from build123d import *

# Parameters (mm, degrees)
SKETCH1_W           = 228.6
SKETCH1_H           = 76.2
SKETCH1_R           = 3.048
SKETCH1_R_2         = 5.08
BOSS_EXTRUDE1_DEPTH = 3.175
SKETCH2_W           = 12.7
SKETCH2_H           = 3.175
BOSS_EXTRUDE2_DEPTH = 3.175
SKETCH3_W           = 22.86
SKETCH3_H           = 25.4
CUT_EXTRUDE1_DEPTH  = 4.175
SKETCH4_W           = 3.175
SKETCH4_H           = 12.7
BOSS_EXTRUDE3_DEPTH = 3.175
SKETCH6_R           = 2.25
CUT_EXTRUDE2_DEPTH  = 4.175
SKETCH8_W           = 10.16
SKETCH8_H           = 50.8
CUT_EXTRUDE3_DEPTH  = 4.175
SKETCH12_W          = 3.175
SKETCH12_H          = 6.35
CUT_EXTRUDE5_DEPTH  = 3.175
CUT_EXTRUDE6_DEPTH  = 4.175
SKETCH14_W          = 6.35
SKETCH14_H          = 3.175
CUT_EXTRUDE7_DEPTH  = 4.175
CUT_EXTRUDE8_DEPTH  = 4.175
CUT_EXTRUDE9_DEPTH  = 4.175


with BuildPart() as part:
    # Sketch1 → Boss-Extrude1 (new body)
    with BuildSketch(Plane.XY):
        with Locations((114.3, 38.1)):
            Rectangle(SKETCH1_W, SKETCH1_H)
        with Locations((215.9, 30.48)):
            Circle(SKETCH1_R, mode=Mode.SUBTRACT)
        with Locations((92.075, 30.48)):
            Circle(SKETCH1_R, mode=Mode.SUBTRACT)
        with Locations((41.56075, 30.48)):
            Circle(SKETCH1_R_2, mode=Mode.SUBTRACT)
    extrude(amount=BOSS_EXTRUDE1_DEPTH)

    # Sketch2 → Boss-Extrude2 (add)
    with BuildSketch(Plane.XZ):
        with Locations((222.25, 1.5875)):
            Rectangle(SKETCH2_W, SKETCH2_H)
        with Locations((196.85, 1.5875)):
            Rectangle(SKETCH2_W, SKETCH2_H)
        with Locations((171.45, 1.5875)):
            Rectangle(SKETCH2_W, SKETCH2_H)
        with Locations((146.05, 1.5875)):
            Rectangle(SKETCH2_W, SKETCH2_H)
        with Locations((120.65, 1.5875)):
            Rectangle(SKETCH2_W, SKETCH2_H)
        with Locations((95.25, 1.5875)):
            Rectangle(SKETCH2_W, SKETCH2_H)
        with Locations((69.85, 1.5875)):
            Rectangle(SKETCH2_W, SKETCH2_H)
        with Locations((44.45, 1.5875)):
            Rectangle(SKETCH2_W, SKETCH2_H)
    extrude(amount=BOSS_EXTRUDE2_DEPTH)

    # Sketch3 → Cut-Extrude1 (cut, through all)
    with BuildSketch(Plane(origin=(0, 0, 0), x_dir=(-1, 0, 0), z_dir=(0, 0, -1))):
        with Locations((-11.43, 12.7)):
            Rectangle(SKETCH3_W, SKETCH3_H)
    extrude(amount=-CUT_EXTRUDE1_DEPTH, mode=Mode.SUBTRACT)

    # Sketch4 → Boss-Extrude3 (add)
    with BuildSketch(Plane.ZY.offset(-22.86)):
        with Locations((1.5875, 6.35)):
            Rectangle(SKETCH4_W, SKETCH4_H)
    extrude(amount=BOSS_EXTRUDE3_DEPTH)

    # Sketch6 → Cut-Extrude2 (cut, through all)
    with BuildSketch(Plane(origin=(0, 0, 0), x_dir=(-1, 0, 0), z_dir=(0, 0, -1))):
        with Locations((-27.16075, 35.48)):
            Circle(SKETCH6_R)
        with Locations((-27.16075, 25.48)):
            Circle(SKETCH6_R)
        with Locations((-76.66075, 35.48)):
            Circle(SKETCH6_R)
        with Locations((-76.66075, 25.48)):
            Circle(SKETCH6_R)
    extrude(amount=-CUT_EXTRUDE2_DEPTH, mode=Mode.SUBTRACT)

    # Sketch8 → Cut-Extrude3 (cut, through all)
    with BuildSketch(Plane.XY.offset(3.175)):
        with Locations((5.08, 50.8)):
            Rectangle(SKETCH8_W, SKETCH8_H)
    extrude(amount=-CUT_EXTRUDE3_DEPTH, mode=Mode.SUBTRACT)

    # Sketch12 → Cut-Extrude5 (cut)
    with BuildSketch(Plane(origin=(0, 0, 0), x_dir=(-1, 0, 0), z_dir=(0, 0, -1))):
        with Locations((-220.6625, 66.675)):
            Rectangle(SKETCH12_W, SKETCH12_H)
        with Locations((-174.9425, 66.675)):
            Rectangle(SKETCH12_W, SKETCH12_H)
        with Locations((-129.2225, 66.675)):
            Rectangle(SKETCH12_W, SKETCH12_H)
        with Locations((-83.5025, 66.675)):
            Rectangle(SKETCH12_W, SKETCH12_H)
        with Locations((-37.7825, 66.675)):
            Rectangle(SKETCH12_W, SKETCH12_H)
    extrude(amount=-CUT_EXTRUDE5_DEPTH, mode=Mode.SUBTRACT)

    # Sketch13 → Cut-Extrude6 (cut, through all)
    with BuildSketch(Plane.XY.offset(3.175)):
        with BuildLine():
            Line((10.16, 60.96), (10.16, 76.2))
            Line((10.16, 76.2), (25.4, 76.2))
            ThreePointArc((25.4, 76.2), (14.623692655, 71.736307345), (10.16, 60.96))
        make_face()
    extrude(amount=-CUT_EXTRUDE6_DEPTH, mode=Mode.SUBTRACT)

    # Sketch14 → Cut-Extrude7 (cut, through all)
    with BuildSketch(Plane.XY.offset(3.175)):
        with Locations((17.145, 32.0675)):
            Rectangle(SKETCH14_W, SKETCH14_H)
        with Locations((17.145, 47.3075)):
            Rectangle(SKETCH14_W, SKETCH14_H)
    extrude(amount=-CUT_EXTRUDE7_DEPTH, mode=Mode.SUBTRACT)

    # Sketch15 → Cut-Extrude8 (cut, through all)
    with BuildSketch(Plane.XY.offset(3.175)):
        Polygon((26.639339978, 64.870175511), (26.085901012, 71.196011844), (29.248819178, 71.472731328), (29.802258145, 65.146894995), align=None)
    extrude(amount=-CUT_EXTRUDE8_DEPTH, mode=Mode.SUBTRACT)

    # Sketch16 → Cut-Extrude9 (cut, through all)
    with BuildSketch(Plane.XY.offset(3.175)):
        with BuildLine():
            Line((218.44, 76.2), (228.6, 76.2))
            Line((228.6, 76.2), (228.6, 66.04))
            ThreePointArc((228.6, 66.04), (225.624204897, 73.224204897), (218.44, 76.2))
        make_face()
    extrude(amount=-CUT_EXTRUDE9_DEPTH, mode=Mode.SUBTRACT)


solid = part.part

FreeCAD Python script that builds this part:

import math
import FreeCAD as App
import Part
import Sketcher
from FreeCAD import Vector
Q = App.Units.Quantity


def add_polygon(sketch, points):
    """Adds a closed chain of lines whose ends are joined by coincident constraints."""
    first, n = sketch.GeometryCount, len(points)
    for a, b in zip(points, points[1:] + points[:1]):
        sketch.addGeometry(Part.LineSegment(App.Vector(*a, 0), App.Vector(*b, 0)), False)
    for i in range(n):
        sketch.addConstraint(Sketcher.Constraint("Coincident", first + i, 2, first + (i + 1) % n, 1))

doc = App.newDocument("Part")
body = doc.addObject("PartDesign::Body", "Body")

# Sketch on XY plane
sketch1 = body.newObject("Sketcher::SketchObject", "Sketch")
sketch1.AttachmentSupport = (doc.getObject("XY_Plane"), [""])
sketch1.MapMode = "FlatFace"
add_polygon(sketch1, [(0, 76.2), (0, 0), (228.6, 0), (228.6, 76.2)])  # lines 0-3
sketch1.addGeometry(Part.Circle(Vector(41.6, 30.5, 0), Vector(0, 0, 1), 5.1), False)  # 4
sketch1.addGeometry(Part.Circle(Vector(92.1, 30.5, 0), Vector(0, 0, 1), 3), False)  # 5
sketch1.addGeometry(Part.Circle(Vector(215.9, 30.5, 0), Vector(0, 0, 1), 3), False)  # 6
sketch1.addConstraint([
    Sketcher.Constraint("Vertical", 0),
    Sketcher.Constraint("Horizontal", 1),
    Sketcher.Constraint("Vertical", 2),
    Sketcher.Constraint("Horizontal", 3),
    Sketcher.Constraint("Coincident", 0, 2, -1, 1),
    Sketcher.Constraint("Equal", 5, 6),
    Sketcher.Constraint("Horizontal", 4, 3, 5, 3),
    Sketcher.Constraint("Horizontal", 5, 3, 6, 3),
    Sketcher.Constraint("Diameter", 4, Q("0.4 in")),
    Sketcher.Constraint("Diameter", 5, Q("0.24 in")),
    Sketcher.Constraint("DistanceX", 1, 1, 1, 2, Q("9 in")),
    Sketcher.Constraint("DistanceY", 0, 2, 0, 1, Q("3 in")),
    Sketcher.Constraint("DistanceY", -1, 1, 4, 3, Q("1.2 in")),
    Sketcher.Constraint("DistanceX", -1, 1, 6, 3, Q("8.5 in")),
    Sketcher.Constraint("DistanceX", -1, 1, 5, 3, Q("3.625 in")),
    Sketcher.Constraint("DistanceX", -1, 1, 4, 3, Q("41.56075 mm")),
])
pad1 = body.newObject("PartDesign::Pad", "Pad")
pad1.Profile = sketch1
pad1.Length = Q("0.125 in")

# Sketch on XZ plane
sketch2 = body.newObject("Sketcher::SketchObject", "Sketch001")
sketch2.AttachmentSupport = (doc.getObject("XZ_Plane"), [""])
sketch2.MapMode = "FlatFace"
add_polygon(sketch2, [(215.9, 3.2), (215.9, 0), (228.6, 0), (228.6, 3.2)])  # lines 0-3
add_polygon(sketch2, [(190.5, 3.2), (190.5, 0), (203.2, 0), (203.2, 3.2)])  # lines 4-7
add_polygon(sketch2, [(165.1, 3.2), (165.1, 0), (177.8, 0), (177.8, 3.2)])  # lines 8-11
add_polygon(sketch2, [(139.7, 3.2), (139.7, 0), (152.4, 0), (152.4, 3.2)])  # lines 12-15
add_polygon(sketch2, [(114.3, 3.2), (114.3, 0), (127, 0), (127, 3.2)])  # lines 16-19
add_polygon(sketch2, [(88.9, 3.2), (88.9, 0), (101.6, 0), (101.6, 3.2)])  # lines 20-23
add_polygon(sketch2, [(63.5, 3.2), (63.5, 0), (76.2, 0), (76.2, 3.2)])  # lines 24-27
add_polygon(sketch2, [(38.1, 3.2), (38.1, 0), (50.8, 0), (50.8, 3.2)])  # lines 28-31
sketch2.addConstraint([
    Sketcher.Constraint("Vertical", 0),
    Sketcher.Constraint("Horizontal", 1),
    Sketcher.Constraint("Vertical", 2),
    Sketcher.Constraint("Horizontal", 3),
    Sketcher.Constraint("Vertical", 4),
    Sketcher.Constraint("Horizontal", 5),
    Sketcher.Constraint("Vertical", 6),
    Sketcher.Constraint("Horizontal", 7),
    Sketcher.Constraint("Vertical", 8),
    Sketcher.Constraint("Horizontal", 9),
    Sketcher.Constraint("Vertical", 10),
    Sketcher.Constraint("Horizontal", 11),
    Sketcher.Constraint("Vertical", 12),
    Sketcher.Constraint("Horizontal", 13),
    Sketcher.Constraint("Vertical", 14),
    Sketcher.Constraint("Horizontal", 15),
    Sketcher.Constraint("Vertical", 16),
    Sketcher.Constraint("Horizontal", 17),
    Sketcher.Constraint("Vertical", 18),
    Sketcher.Constraint("Horizontal", 19),
    Sketcher.Constraint("Vertical", 20),
    Sketcher.Constraint("Horizontal", 21),
    Sketcher.Constraint("Vertical", 22),
    Sketcher.Constraint("Horizontal", 23),
    Sketcher.Constraint("Vertical", 24),
    Sketcher.Constraint("Horizontal", 25),
    Sketcher.Constraint("Vertical", 26),
    Sketcher.Constraint("Horizontal", 27),
    Sketcher.Constraint("Vertical", 28),
    Sketcher.Constraint("Horizontal", 29),
    Sketcher.Constraint("Vertical", 30),
    Sketcher.Constraint("Horizontal", 31),
    Sketcher.Constraint("PointOnObject", 0, 2, -1),
    Sketcher.Constraint("PointOnObject", 4, 2, -1),
    Sketcher.Constraint("PointOnObject", 8, 2, -1),
    Sketcher.Constraint("PointOnObject", 12, 2, -1),
    Sketcher.Constraint("PointOnObject", 16, 2, -1),
    Sketcher.Constraint("PointOnObject", 20, 2, -1),
    Sketcher.Constraint("PointOnObject", 24, 2, -1),
    Sketcher.Constraint("PointOnObject", 28, 2, -1),
    Sketcher.Constraint("Horizontal", 3, 2, 6, 2),
    Sketcher.Constraint("Horizontal", 7, 2, 10, 2),
    Sketcher.Constraint("Horizontal", 11, 2, 14, 2),
    Sketcher.Constraint("Horizontal", 15, 2, 18, 2),
    Sketcher.Constraint("Horizontal", 19, 2, 22, 2),
    Sketcher.Constraint("Horizontal", 23, 2, 26, 2),
    Sketcher.Constraint("Horizontal", 27, 2, 30, 2),
    Sketcher.Constraint("Equal", 3, 5),
    Sketcher.Constraint("Equal", 7, 9),
    Sketcher.Constraint("Equal", 11, 13),
    Sketcher.Constraint("Equal", 15, 17),
    Sketcher.Constraint("Equal", 19, 21),
    Sketcher.Constraint("Equal", 23, 25),
    Sketcher.Constraint("Equal", 27, 29),
    Sketcher.Constraint("DistanceX", 1, 1, 1, 2, Q("0.5 in")),
    Sketcher.Constraint("DistanceX", -1, 1, 1, 2, Q("9 in")),
    Sketcher.Constraint("DistanceX", -1, 1, 5, 2, Q("8 in")),
    Sketcher.Constraint("DistanceX", -1, 1, 9, 2, Q("7 in")),
    Sketcher.Constraint("DistanceX", -1, 1, 13, 2, Q("6 in")),
    Sketcher.Constraint("DistanceX", -1, 1, 17, 2, Q("5 in")),
    Sketcher.Constraint("DistanceX", -1, 1, 21, 2, Q("4 in")),
    Sketcher.Constraint("DistanceX", -1, 1, 25, 2, Q("3 in")),
    Sketcher.Constraint("DistanceX", -1, 1, 29, 2, Q("2 in")),
    Sketcher.Constraint("DistanceY", 0, 2, 0, 1, Q("0.125 in")),
])
pad2 = body.newObject("PartDesign::Pad", "Pad001")
pad2.Profile = sketch2
pad2.Length = Q("0.125 in")

# Sketch on XY plane
sketch3 = body.newObject("Sketcher::SketchObject", "Sketch002")
sketch3.AttachmentSupport = (doc.getObject("XY_Plane"), [""])
sketch3.MapMode = "FlatFace"
add_polygon(sketch3, [(23, 25), (23, 0), (0, 0), (0, 25)])  # lines 0-3
sketch3.addConstraint([
    Sketcher.Constraint("Vertical", 0),
    Sketcher.Constraint("Horizontal", 1),
    Sketcher.Constraint("Vertical", 2),
    Sketcher.Constraint("Horizontal", 3),
    Sketcher.Constraint("Coincident", 1, 2, -1, 1),
    Sketcher.Constraint("DistanceY", 0, 2, 0, 1, Q("1 in")),
    Sketcher.Constraint("DistanceX", 1, 2, 1, 1, Q("0.9 in")),
])
pocket1 = body.newObject("PartDesign::Pocket", "Pocket")
pocket1.Profile = sketch3
pocket1.Type = "ThroughAll"
pocket1.Reversed = True

# Sketch on YZ plane
sketch4 = body.newObject("Sketcher::SketchObject", "Sketch003")
sketch4.AttachmentSupport = (doc.getObject("YZ_Plane"), [""])
sketch4.MapMode = "FlatFace"
sketch4.AttachmentOffset = App.Placement(Vector(0, 0, 0.9 * 25.4), App.Rotation())
add_polygon(sketch4, [(12.7, 0), (0, 0), (0, 3.2), (12.7, 3.2)])  # lines 0-3
sketch4.addConstraint([
    Sketcher.Constraint("Horizontal", 0),
    Sketcher.Constraint("Vertical", 1),
    Sketcher.Constraint("Horizontal", 2),
    Sketcher.Constraint("Vertical", 3),
    Sketcher.Constraint("Coincident", 0, 2, -1, 1),
    Sketcher.Constraint("DistanceX", 0, 2, 0, 1, Q("0.5 in")),
    Sketcher.Constraint("DistanceY", 1, 1, 1, 2, Q("0.125 in")),
])
pad3 = body.newObject("PartDesign::Pad", "Pad002")
pad3.Profile = sketch4
pad3.Length = Q("0.125 in")
pad3.Reversed = True

# Sketch on XY plane
sketch5 = body.newObject("Sketcher::SketchObject", "Sketch004")
sketch5.AttachmentSupport = (doc.getObject("XY_Plane"), [""])
sketch5.MapMode = "FlatFace"
sketch5.addGeometry([
    Part.Circle(Vector(27.2, 35.5, 0), Vector(0, 0, 1), 2.2),
    Part.Circle(Vector(27.2, 25.5, 0), Vector(0, 0, 1), 2.2),
    Part.Circle(Vector(76.7, 35.5, 0), Vector(0, 0, 1), 2.2),
    Part.Circle(Vector(76.7, 25.5, 0), Vector(0, 0, 1), 2.2),
], False)
sketch5.addConstraint([
    Sketcher.Constraint("Equal", 0, 1),
    Sketcher.Constraint("Equal", 1, 2),
    Sketcher.Constraint("Equal", 2, 3),
    Sketcher.Constraint("Horizontal", 0, 3, 2, 3),
    Sketcher.Constraint("Horizontal", 1, 3, 3, 3),
    Sketcher.Constraint("Vertical", 0, 3, 1, 3),
    Sketcher.Constraint("Vertical", 2, 3, 3, 3),
    Sketcher.Constraint("Diameter", 0, Q("4.5 mm")),
    Sketcher.Constraint("DistanceY", -1, 1, 0, 3, Q("35.48 mm")),
    Sketcher.Constraint("DistanceY", -1, 1, 1, 3, Q("25.48 mm")),
    Sketcher.Constraint("DistanceX", 0, 3, 2, 3, Q("49.5 mm")),
    Sketcher.Constraint("DistanceX", -1, 1, 0, 3, Q("27.16075 mm")),
])
pocket2 = body.newObject("PartDesign::Pocket", "Pocket001")
pocket2.Profile = sketch5
pocket2.Type = "ThroughAll"
pocket2.Reversed = True

# Sketch on XY plane
sketch6 = body.newObject("Sketcher::SketchObject", "Sketch005")
sketch6.AttachmentSupport = (doc.getObject("XY_Plane"), [""])
sketch6.MapMode = "FlatFace"
sketch6.AttachmentOffset = App.Placement(Vector(0, 0, 0.125 * 25.4), App.Rotation())
add_polygon(sketch6, [(0, 76), (0, 25), (10, 25), (10, 76)])  # lines 0-3
sketch6.addConstraint([
    Sketcher.Constraint("Vertical", 0),
    Sketcher.Constraint("Horizontal", 1),
    Sketcher.Constraint("Vertical", 2),
    Sketcher.Constraint("Horizontal", 3),
    Sketcher.Constraint("PointOnObject", 0, 2, -2),
    Sketcher.Constraint("DistanceY", 0, 2, 0, 1, Q("2 in")),
    Sketcher.Constraint("DistanceX", 1, 1, 1, 2, Q("0.4 in")),
    Sketcher.Constraint("DistanceY", -1, 1, 0, 2, Q("1 in")),
])
pocket3 = body.newObject("PartDesign::Pocket", "Pocket002")
pocket3.Profile = sketch6
pocket3.Type = "ThroughAll"

# Sketch on XY plane
sketch7 = body.newObject("Sketcher::SketchObject", "Sketch006")
sketch7.AttachmentSupport = (doc.getObject("XY_Plane"), [""])
sketch7.MapMode = "FlatFace"
add_polygon(sketch7, [(222.2, 69.8), (222.2, 63.5), (219.1, 63.5), (219.1, 69.8)])  # lines 0-3
add_polygon(sketch7, [(176.5, 69.8), (176.5, 63.5), (173.4, 63.5), (173.4, 69.8)])  # lines 4-7
add_polygon(sketch7, [(130.8, 69.8), (130.8, 63.5), (127.6, 63.5), (127.6, 69.8)])  # lines 8-11
add_polygon(sketch7, [(85.1, 69.8), (85.1, 63.5), (81.9, 63.5), (81.9, 69.8)])  # lines 12-15
add_polygon(sketch7, [(39.4, 69.8), (39.4, 63.5), (36.2, 63.5), (36.2, 69.8)])  # lines 16-19
sketch7.addConstraint([
    Sketcher.Constraint("Vertical", 0),
    Sketcher.Constraint("Horizontal", 1),
    Sketcher.Constraint("Vertical", 2),
    Sketcher.Constraint("Horizontal", 3),
    Sketcher.Constraint("Vertical", 4),
    Sketcher.Constraint("Horizontal", 5),
    Sketcher.Constraint("Vertical", 6),
    Sketcher.Constraint("Horizontal", 7),
    Sketcher.Constraint("Vertical", 8),
    Sketcher.Constraint("Horizontal", 9),
    Sketcher.Constraint("Vertical", 10),
    Sketcher.Constraint("Horizontal", 11),
    Sketcher.Constraint("Vertical", 12),
    Sketcher.Constraint("Horizontal", 13),
    Sketcher.Constraint("Vertical", 14),
    Sketcher.Constraint("Horizontal", 15),
    Sketcher.Constraint("Vertical", 16),
    Sketcher.Constraint("Horizontal", 17),
    Sketcher.Constraint("Vertical", 18),
    Sketcher.Constraint("Horizontal", 19),
    Sketcher.Constraint("Horizontal", 1, 2, 4, 2),
    Sketcher.Constraint("Horizontal", 3, 2, 6, 2),
    Sketcher.Constraint("Horizontal", 5, 2, 8, 2),
    Sketcher.Constraint("Horizontal", 7, 2, 10, 2),
    Sketcher.Constraint("Horizontal", 9, 2, 12, 2),
    Sketcher.Constraint("Horizontal", 11, 2, 14, 2),
    Sketcher.Constraint("Horizontal", 13, 2, 16, 2),
    Sketcher.Constraint("Horizontal", 15, 2, 18, 2),
    Sketcher.Constraint("Equal", 3, 5),
    Sketcher.Constraint("Equal", 7, 9),
    Sketcher.Constraint("Equal", 11, 13),
    Sketcher.Constraint("Equal", 15, 17),
    Sketcher.Constraint("DistanceY", 0, 2, 0, 1, Q("0.25 in")),
    Sketcher.Constraint("DistanceY", -1, 1, 0, 2, Q("2.5 in")),
    Sketcher.Constraint("DistanceX", 4, 2, 0, 2, Q("1.8 in")),
    Sketcher.Constraint("DistanceX", 8, 2, 4, 2, Q("1.8 in")),
    Sketcher.Constraint("DistanceX", 12, 2, 8, 2, Q("1.8 in")),
    Sketcher.Constraint("DistanceX", 16, 2, 12, 2, Q("1.8 in")),
    Sketcher.Constraint("DistanceX", 1, 2, 1, 1, Q("0.125 in")),
    Sketcher.Constraint("DistanceX", -1, 1, 0, 2, Q("8.75 in")),
])
pocket4 = body.newObject("PartDesign::Pocket", "Pocket003")
pocket4.Profile = sketch7
pocket4.Length = Q("0.125 in")
pocket4.Reversed = True

# Sketch on XY plane
sketch8 = body.newObject("Sketcher::SketchObject", "Sketch007")
sketch8.AttachmentSupport = (doc.getObject("XY_Plane"), [""])
sketch8.MapMode = "FlatFace"
sketch8.AttachmentOffset = App.Placement(Vector(0, 0, 0.125 * 25.4), App.Rotation())
sketch8.addGeometry([
    Part.LineSegment(Vector(10, 76, 0), Vector(10, 61, 0)),
    Part.ArcOfCircle(Part.Circle(Vector(25, 61, 0), Vector(0, 0, 1), 15), math.radians(90), math.radians(180)),
    Part.LineSegment(Vector(25, 76, 0), Vector(10, 76, 0)),
], False)
sketch8.addConstraint([
    Sketcher.Constraint("Tangent", 0, 2, 1, 2),
    Sketcher.Constraint("Tangent", 1, 1, 2, 1),
    Sketcher.Constraint("Coincident", 2, 2, 0, 1),
    Sketcher.Constraint("Vertical", 0),
    Sketcher.Constraint("Horizontal", 2),
    Sketcher.Constraint("Radius", 1, Q("0.6 in")),
    Sketcher.Constraint("DistanceX", -1, 1, 1, 3, Q("1 in")),
    Sketcher.Constraint("DistanceY", -1, 1, 1, 1, Q("3 in")),
])
pocket5 = body.newObject("PartDesign::Pocket", "Pocket004")
pocket5.Profile = sketch8
pocket5.Type = "ThroughAll"

# Sketch on XY plane
sketch9 = body.newObject("Sketcher::SketchObject", "Sketch008")
sketch9.AttachmentSupport = (doc.getObject("XY_Plane"), [""])
sketch9.MapMode = "FlatFace"
sketch9.AttachmentOffset = App.Placement(Vector(0, 0, 0.125 * 25.4), App.Rotation())
add_polygon(sketch9, [(14, 33.7), (14, 30.5), (20.3, 30.5), (20.3, 33.7)])  # lines 0-3
add_polygon(sketch9, [(14, 48.9), (14, 45.7), (20.3, 45.7), (20.3, 48.9)])  # lines 4-7
sketch9.addConstraint([
    Sketcher.Constraint("Vertical", 0),
    Sketcher.Constraint("Horizontal", 1),
    Sketcher.Constraint("Vertical", 2),
    Sketcher.Constraint("Horizontal", 3),
    Sketcher.Constraint("Vertical", 4),
    Sketcher.Constraint("Horizontal", 5),
    Sketcher.Constraint("Vertical", 6),
    Sketcher.Constraint("Horizontal", 7),
    Sketcher.Constraint("Vertical", 3, 2, 4, 2),
    Sketcher.Constraint("Vertical", 2, 2, 5, 2),
    Sketcher.Constraint("Equal", 2, 4),
    Sketcher.Constraint("DistanceX", 1, 1, 1, 2, Q("0.25 in")),
    Sketcher.Constraint("DistanceY", -1, 1, 0, 2, Q("1.2 in")),
    Sketcher.Constraint("DistanceX", -1, 1, 1, 2, Q("0.8 in")),
    Sketcher.Constraint("DistanceY", -1, 1, 4, 2, Q("1.8 in")),
    Sketcher.Constraint("DistanceY", 0, 2, 0, 1, Q("0.125 in")),
])
pocket6 = body.newObject("PartDesign::Pocket", "Pocket005")
pocket6.Profile = sketch9
pocket6.Type = "ThroughAll"

# Sketch on XY plane
sketch10 = body.newObject("Sketcher::SketchObject", "Sketch009")
sketch10.AttachmentSupport = (doc.getObject("XY_Plane"), [""])
sketch10.MapMode = "FlatFace"
sketch10.AttachmentOffset = App.Placement(Vector(0, 0, 0.125 * 25.4), App.Rotation())
add_polygon(sketch10, [(26.1, 71.2), (26.6, 64.9), (29.8, 65.1), (29.2, 71.5)])  # lines 0-3
sketch10.addConstraint([
    Sketcher.Constraint("Perpendicular", 0, 1),
    Sketcher.Constraint("Perpendicular", 1, 2),
    Sketcher.Constraint("Perpendicular", 2, 3),
    Sketcher.Constraint("Angle", 0, Q("-85 deg")),
    Sketcher.Constraint("Distance", 0, Q("0.25 in")),
    Sketcher.Constraint("Distance", 1, Q("0.125 in")),
    Sketcher.Constraint("DistanceX", -1, 1, 3, 2, Q("26.085901 mm")),
    Sketcher.Constraint("DistanceY", -1, 1, 2, 2, Q("71.472731 mm")),
])
pocket7 = body.newObject("PartDesign::Pocket", "Pocket006")
pocket7.Profile = sketch10
pocket7.Type = "ThroughAll"

# Sketch on XY plane
sketch11 = body.newObject("Sketcher::SketchObject", "Sketch010")
sketch11.AttachmentSupport = (doc.getObject("XY_Plane"), [""])
sketch11.MapMode = "FlatFace"
sketch11.AttachmentOffset = App.Placement(Vector(0, 0, 0.125 * 25.4), App.Rotation())
sketch11.addGeometry([
    Part.LineSegment(Vector(229, 76, 0), Vector(218, 76, 0)),
    Part.ArcOfCircle(Part.Circle(Vector(218, 66, 0), Vector(0, 0, 1), 10), math.radians(0), math.radians(90)),
    Part.LineSegment(Vector(229, 66, 0), Vector(229, 76, 0)),
], False)
sketch11.addConstraint([
    Sketcher.Constraint("Tangent", 0, 2, 1, 2),
    Sketcher.Constraint("Tangent", 1, 1, 2, 1),
    Sketcher.Constraint("Coincident", 2, 2, 0, 1),
    Sketcher.Constraint("Horizontal", 0),
    Sketcher.Constraint("Vertical", 2),
    Sketcher.Constraint("Radius", 1, Q("0.4 in")),
    Sketcher.Constraint("DistanceY", -1, 1, 0, 2, Q("3 in")),
    Sketcher.Constraint("DistanceX", -1, 1, 1, 1, Q("9 in")),
])
pocket8 = body.newObject("PartDesign::Pocket", "Pocket007")
pocket8.Profile = sketch11
pocket8.Type = "ThroughAll"

doc.recompute()
